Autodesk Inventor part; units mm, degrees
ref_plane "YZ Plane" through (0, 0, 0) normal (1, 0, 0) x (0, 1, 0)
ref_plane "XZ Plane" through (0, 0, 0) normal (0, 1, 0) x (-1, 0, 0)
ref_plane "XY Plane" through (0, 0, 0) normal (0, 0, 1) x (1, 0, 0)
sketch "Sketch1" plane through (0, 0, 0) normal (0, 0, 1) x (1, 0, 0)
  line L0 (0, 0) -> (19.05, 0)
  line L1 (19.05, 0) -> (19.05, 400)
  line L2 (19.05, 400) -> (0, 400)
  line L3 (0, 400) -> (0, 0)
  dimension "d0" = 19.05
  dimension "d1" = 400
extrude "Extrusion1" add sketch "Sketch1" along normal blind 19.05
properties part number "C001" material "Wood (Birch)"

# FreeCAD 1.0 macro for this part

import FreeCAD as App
import Part
import Sketcher
from FreeCAD import Vector

doc = App.newDocument("Part")
params = doc.addObject("Spreadsheet::Sheet", "Params")
for row, (alias, value) in enumerate([
    ("sketch1_height", "400 mm"),
    ("sketch1_width", "19.05 mm"),
    ("pad1_length", "19.05 mm"),
], start=1):
    params.set(f"A{row}", alias)
    params.set(f"B{row}", "=" + value)
    params.setAlias(f"B{row}", alias)

body = doc.addObject("PartDesign::Body", "Body")

sketch1 = body.newObject("Sketcher::SketchObject", "Sketch")
sketch1.AttachmentSupport = (doc.getObject("XY_Plane"), [""])
sketch1.MapMode = "FlatFace"
sketch1.addGeometry([
    Part.LineSegment(Vector(0, 400, 0), Vector(0, 0, 0)),
    Part.LineSegment(Vector(0, 0, 0), Vector(19, 0, 0)),
    Part.LineSegment(Vector(19, 0, 0), Vector(19, 400, 0)),
    Part.LineSegment(Vector(19, 400, 0), Vector(0, 400, 0)),
], False)
sketch1.addConstraint([
    Sketcher.Constraint("Coincident", 0, 2, 1, 1),
    Sketcher.Constraint("Coincident", 1, 2, 2, 1),
    Sketcher.Constraint("Coincident", 2, 2, 3, 1),
    Sketcher.Constraint("Coincident", 3, 2, 0, 1),
    Sketcher.Constraint("Vertical", 0),
    Sketcher.Constraint("Horizontal", 1),
    Sketcher.Constraint("Vertical", 2),
    Sketcher.Constraint("Horizontal", 3),
    Sketcher.Constraint("Coincident", 0, 2, -1, 1),
    Sketcher.Constraint("DistanceY", 0, 2, 0, 1, 400.0),
    Sketcher.Constraint("DistanceX", 1, 1, 1, 2, 19.05),
])
sketch1.setExpression("Constraints[9]", "Params.sketch1_height")
sketch1.setExpression("Constraints[10]", "Params.sketch1_width")
pad1 = body.newObject("PartDesign::Pad", "Pad")
pad1.Profile = sketch1
pad1.setExpression("Length", "Params.pad1_length")

doc.recompute()
